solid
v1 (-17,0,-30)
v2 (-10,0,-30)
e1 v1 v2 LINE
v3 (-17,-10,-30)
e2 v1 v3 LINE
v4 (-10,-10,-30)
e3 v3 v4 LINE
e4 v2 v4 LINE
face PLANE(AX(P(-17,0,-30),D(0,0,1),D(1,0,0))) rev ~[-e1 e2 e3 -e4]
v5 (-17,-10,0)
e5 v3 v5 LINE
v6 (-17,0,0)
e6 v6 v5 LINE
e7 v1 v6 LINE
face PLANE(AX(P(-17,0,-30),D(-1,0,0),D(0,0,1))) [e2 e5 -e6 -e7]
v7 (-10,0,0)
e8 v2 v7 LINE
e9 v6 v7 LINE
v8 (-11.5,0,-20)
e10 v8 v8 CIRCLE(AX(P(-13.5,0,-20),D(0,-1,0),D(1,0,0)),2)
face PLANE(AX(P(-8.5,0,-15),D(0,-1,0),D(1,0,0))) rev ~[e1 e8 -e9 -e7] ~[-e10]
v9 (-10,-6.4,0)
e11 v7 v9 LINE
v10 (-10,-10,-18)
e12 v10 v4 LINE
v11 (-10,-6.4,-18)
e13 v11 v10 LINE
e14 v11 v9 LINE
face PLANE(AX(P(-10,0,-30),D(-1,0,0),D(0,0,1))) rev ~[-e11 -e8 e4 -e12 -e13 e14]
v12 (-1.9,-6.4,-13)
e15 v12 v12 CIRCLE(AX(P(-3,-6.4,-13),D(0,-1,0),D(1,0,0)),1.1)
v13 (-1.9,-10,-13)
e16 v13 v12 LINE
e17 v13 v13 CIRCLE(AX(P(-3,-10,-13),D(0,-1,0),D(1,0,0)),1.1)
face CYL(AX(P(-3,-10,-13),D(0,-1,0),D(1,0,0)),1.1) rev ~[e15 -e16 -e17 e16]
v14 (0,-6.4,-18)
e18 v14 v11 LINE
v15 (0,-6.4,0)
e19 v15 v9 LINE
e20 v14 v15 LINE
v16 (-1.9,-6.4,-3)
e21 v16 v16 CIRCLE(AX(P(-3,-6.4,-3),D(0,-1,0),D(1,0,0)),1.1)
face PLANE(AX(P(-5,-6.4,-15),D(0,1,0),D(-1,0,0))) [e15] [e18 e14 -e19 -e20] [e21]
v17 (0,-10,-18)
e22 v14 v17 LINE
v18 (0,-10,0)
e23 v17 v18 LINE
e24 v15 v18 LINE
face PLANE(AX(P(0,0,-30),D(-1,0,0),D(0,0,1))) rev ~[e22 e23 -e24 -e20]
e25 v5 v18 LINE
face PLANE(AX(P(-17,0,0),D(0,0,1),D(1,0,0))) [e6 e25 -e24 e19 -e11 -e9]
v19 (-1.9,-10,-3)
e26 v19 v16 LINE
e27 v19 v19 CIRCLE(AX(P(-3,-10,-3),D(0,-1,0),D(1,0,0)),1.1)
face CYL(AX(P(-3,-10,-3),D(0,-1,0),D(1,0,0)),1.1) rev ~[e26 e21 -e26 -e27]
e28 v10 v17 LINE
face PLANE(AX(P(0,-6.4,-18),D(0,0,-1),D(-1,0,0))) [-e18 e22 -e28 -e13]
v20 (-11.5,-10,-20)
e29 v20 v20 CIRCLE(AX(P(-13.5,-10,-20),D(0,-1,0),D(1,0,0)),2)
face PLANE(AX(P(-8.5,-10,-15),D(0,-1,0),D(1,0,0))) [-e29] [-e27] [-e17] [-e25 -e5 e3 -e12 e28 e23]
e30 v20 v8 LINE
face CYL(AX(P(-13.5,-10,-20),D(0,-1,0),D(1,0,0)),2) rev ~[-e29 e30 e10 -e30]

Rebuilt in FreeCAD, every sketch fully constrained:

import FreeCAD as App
import Part
import Sketcher
from FreeCAD import Vector
Q = App.Units.Quantity


def add_polygon(sketch, points):
    """Adds a closed chain of lines whose ends are joined by coincident constraints."""
    first, n = sketch.GeometryCount, len(points)
    for a, b in zip(points, points[1:] + points[:1]):
        sketch.addGeometry(Part.LineSegment(App.Vector(*a, 0), App.Vector(*b, 0)), False)
    for i in range(n):
        sketch.addConstraint(Sketcher.Constraint("Coincident", first + i, 2, first + (i + 1) % n, 1))

doc = App.newDocument("Part")
body = doc.addObject("PartDesign::Body", "Body")

# Sketch on XZ plane
sketch1 = doc.addObject("Sketcher::SketchObject", "Sketch")
body.addObject(sketch1)
sketch1.AttachmentSupport = (doc.XZ_Plane, [""])
sketch1.MapMode = "FlatFace"
add_polygon(sketch1, [(-17, 0), (-17, -30), (0, -30), (0, 0)])  # lines 0-3
sketch1.addConstraint(Sketcher.Constraint("Vertical", 0))
sketch1.addConstraint(Sketcher.Constraint("Horizontal", 1))
sketch1.addConstraint(Sketcher.Constraint("Vertical", 2))
sketch1.addConstraint(Sketcher.Constraint("Horizontal", 3))
sketch1.addConstraint(Sketcher.Constraint("Coincident", 2, 2, -1, 1))
sketch1.addConstraint(Sketcher.Constraint("DistanceX", 1, 1, 1, 2, Q("17 mm")))
sketch1.addConstraint(Sketcher.Constraint("DistanceY", 0, 2, 0, 1, Q("30 mm")))
pad1 = doc.addObject("PartDesign::Pad", "Pad")
body.addObject(pad1)
pad1.Profile = sketch1
pad1.Length = 10

# Sketch on XZ plane
sketch2 = doc.addObject("Sketcher::SketchObject", "Sketch001")
body.addObject(sketch2)
sketch2.AttachmentSupport = (doc.XZ_Plane, [""])
sketch2.MapMode = "FlatFace"
add_polygon(sketch2, [(0, 0), (0, -30), (-10, -30), (-10, 0)])  # lines 0-3
sketch2.addConstraint(Sketcher.Constraint("Vertical", 0))
sketch2.addConstraint(Sketcher.Constraint("Horizontal", 1))
sketch2.addConstraint(Sketcher.Constraint("Vertical", 2))
sketch2.addConstraint(Sketcher.Constraint("Horizontal", 3))
sketch2.addConstraint(Sketcher.Constraint("Coincident", 3, 2, -1, 1))
sketch2.addConstraint(Sketcher.Constraint("DistanceX", 1, 2, 1, 1, Q("10 mm")))
sketch2.addConstraint(Sketcher.Constraint("DistanceY", 0, 2, 0, 1, Q("30 mm")))
pocket1 = doc.addObject("PartDesign::Pocket", "Pocket")
body.addObject(pocket1)
pocket1.Profile = sketch2
pocket1.Length = 6.4
pocket1.Reversed = True

# Sketch on XZ plane
sketch3 = doc.addObject("Sketcher::SketchObject", "Sketch002")
body.addObject(sketch3)
sketch3.AttachmentSupport = (doc.XZ_Plane, [""])
sketch3.MapMode = "FlatFace"
sketch3.AttachmentOffset = App.Placement(Vector(0, 0, 10), App.Rotation())
sketch3.addGeometry(Part.Circle(Vector(-13.5, -20, 0), Vector(0, 0, 1), 2), False)
sketch3.addConstraint(Sketcher.Constraint("Diameter", 0, Q("4 mm")))
sketch3.addConstraint(Sketcher.Constraint("DistanceY", 0, 3, -1, 1, Q("20 mm")))
sketch3.addConstraint(Sketcher.Constraint("DistanceX", 0, 3, -1, 1, Q("13.5 mm")))
pocket2 = doc.addObject("PartDesign::Pocket", "Pocket001")
body.addObject(pocket2)
pocket2.Profile = sketch3
pocket2.Length = 25

# Sketch on XZ plane
sketch4 = doc.addObject("Sketcher::SketchObject", "Sketch003")
body.addObject(sketch4)
sketch4.AttachmentSupport = (doc.XZ_Plane, [""])
sketch4.MapMode = "FlatFace"
sketch4.AttachmentOffset = App.Placement(Vector(0, 0, 10), App.Rotation())
sketch4.addGeometry(Part.Circle(Vector(-3, -3, 0), Vector(0, 0, 1), 1.1), False)
sketch4.addGeometry(Part.Circle(Vector(-3, -13, 0), Vector(0, 0, 1), 1.1), False)
sketch4.addConstraint(Sketcher.Constraint("Equal", 0, 1))
sketch4.addConstraint(Sketcher.Constraint("Vertical", 0, 3, 1, 3))
sketch4.addConstraint(Sketcher.Constraint("Diameter", 0, Q("2.2 mm")))
sketch4.addConstraint(Sketcher.Constraint("DistanceX", 0, 3, -1, 1, Q("3 mm")))
sketch4.addConstraint(Sketcher.Constraint("DistanceY", 0, 3, -1, 1, Q("3 mm")))
sketch4.addConstraint(Sketcher.Constraint("DistanceY", 1, 3, -1, 1, Q("13 mm")))
pocket3 = doc.addObject("PartDesign::Pocket", "Pocket002")
body.addObject(pocket3)
pocket3.Profile = sketch4
pocket3.Length = 25

# Sketch on XZ plane
sketch5 = doc.addObject("Sketcher::SketchObject", "Sketch004")
body.addObject(sketch5)
sketch5.AttachmentSupport = (doc.XZ_Plane, [""])
sketch5.MapMode = "FlatFace"
sketch5.AttachmentOffset = App.Placement(Vector(0, 0, 6.4), App.Rotation())
add_polygon(sketch5, [(0, -18), (0, -30), (-10, -30), (-10, -18)])  # lines 0-3
sketch5.addConstraint(Sketcher.Constraint("Vertical", 0))
sketch5.addConstraint(Sketcher.Constraint("Horizontal", 1))
sketch5.addConstraint(Sketcher.Constraint("Vertical", 2))
sketch5.addConstraint(Sketcher.Constraint("Horizontal", 3))
sketch5.addConstraint(Sketcher.Constraint("PointOnObject", 0, 2, -2))
sketch5.addConstraint(Sketcher.Constraint("DistanceX", 1, 2, 1, 1, Q("10 mm")))
sketch5.addConstraint(Sketcher.Constraint("DistanceY", 0, 2, 0, 1, Q("12 mm")))
sketch5.addConstraint(Sketcher.Constraint("DistanceY", 0, 2, -1, 1, Q("30 mm")))
pocket4 = doc.addObject("PartDesign::Pocket", "Pocket003")
body.addObject(pocket4)
pocket4.Profile = sketch5
pocket4.Length = 25
pocket4.Reversed = True

doc.recompute()
